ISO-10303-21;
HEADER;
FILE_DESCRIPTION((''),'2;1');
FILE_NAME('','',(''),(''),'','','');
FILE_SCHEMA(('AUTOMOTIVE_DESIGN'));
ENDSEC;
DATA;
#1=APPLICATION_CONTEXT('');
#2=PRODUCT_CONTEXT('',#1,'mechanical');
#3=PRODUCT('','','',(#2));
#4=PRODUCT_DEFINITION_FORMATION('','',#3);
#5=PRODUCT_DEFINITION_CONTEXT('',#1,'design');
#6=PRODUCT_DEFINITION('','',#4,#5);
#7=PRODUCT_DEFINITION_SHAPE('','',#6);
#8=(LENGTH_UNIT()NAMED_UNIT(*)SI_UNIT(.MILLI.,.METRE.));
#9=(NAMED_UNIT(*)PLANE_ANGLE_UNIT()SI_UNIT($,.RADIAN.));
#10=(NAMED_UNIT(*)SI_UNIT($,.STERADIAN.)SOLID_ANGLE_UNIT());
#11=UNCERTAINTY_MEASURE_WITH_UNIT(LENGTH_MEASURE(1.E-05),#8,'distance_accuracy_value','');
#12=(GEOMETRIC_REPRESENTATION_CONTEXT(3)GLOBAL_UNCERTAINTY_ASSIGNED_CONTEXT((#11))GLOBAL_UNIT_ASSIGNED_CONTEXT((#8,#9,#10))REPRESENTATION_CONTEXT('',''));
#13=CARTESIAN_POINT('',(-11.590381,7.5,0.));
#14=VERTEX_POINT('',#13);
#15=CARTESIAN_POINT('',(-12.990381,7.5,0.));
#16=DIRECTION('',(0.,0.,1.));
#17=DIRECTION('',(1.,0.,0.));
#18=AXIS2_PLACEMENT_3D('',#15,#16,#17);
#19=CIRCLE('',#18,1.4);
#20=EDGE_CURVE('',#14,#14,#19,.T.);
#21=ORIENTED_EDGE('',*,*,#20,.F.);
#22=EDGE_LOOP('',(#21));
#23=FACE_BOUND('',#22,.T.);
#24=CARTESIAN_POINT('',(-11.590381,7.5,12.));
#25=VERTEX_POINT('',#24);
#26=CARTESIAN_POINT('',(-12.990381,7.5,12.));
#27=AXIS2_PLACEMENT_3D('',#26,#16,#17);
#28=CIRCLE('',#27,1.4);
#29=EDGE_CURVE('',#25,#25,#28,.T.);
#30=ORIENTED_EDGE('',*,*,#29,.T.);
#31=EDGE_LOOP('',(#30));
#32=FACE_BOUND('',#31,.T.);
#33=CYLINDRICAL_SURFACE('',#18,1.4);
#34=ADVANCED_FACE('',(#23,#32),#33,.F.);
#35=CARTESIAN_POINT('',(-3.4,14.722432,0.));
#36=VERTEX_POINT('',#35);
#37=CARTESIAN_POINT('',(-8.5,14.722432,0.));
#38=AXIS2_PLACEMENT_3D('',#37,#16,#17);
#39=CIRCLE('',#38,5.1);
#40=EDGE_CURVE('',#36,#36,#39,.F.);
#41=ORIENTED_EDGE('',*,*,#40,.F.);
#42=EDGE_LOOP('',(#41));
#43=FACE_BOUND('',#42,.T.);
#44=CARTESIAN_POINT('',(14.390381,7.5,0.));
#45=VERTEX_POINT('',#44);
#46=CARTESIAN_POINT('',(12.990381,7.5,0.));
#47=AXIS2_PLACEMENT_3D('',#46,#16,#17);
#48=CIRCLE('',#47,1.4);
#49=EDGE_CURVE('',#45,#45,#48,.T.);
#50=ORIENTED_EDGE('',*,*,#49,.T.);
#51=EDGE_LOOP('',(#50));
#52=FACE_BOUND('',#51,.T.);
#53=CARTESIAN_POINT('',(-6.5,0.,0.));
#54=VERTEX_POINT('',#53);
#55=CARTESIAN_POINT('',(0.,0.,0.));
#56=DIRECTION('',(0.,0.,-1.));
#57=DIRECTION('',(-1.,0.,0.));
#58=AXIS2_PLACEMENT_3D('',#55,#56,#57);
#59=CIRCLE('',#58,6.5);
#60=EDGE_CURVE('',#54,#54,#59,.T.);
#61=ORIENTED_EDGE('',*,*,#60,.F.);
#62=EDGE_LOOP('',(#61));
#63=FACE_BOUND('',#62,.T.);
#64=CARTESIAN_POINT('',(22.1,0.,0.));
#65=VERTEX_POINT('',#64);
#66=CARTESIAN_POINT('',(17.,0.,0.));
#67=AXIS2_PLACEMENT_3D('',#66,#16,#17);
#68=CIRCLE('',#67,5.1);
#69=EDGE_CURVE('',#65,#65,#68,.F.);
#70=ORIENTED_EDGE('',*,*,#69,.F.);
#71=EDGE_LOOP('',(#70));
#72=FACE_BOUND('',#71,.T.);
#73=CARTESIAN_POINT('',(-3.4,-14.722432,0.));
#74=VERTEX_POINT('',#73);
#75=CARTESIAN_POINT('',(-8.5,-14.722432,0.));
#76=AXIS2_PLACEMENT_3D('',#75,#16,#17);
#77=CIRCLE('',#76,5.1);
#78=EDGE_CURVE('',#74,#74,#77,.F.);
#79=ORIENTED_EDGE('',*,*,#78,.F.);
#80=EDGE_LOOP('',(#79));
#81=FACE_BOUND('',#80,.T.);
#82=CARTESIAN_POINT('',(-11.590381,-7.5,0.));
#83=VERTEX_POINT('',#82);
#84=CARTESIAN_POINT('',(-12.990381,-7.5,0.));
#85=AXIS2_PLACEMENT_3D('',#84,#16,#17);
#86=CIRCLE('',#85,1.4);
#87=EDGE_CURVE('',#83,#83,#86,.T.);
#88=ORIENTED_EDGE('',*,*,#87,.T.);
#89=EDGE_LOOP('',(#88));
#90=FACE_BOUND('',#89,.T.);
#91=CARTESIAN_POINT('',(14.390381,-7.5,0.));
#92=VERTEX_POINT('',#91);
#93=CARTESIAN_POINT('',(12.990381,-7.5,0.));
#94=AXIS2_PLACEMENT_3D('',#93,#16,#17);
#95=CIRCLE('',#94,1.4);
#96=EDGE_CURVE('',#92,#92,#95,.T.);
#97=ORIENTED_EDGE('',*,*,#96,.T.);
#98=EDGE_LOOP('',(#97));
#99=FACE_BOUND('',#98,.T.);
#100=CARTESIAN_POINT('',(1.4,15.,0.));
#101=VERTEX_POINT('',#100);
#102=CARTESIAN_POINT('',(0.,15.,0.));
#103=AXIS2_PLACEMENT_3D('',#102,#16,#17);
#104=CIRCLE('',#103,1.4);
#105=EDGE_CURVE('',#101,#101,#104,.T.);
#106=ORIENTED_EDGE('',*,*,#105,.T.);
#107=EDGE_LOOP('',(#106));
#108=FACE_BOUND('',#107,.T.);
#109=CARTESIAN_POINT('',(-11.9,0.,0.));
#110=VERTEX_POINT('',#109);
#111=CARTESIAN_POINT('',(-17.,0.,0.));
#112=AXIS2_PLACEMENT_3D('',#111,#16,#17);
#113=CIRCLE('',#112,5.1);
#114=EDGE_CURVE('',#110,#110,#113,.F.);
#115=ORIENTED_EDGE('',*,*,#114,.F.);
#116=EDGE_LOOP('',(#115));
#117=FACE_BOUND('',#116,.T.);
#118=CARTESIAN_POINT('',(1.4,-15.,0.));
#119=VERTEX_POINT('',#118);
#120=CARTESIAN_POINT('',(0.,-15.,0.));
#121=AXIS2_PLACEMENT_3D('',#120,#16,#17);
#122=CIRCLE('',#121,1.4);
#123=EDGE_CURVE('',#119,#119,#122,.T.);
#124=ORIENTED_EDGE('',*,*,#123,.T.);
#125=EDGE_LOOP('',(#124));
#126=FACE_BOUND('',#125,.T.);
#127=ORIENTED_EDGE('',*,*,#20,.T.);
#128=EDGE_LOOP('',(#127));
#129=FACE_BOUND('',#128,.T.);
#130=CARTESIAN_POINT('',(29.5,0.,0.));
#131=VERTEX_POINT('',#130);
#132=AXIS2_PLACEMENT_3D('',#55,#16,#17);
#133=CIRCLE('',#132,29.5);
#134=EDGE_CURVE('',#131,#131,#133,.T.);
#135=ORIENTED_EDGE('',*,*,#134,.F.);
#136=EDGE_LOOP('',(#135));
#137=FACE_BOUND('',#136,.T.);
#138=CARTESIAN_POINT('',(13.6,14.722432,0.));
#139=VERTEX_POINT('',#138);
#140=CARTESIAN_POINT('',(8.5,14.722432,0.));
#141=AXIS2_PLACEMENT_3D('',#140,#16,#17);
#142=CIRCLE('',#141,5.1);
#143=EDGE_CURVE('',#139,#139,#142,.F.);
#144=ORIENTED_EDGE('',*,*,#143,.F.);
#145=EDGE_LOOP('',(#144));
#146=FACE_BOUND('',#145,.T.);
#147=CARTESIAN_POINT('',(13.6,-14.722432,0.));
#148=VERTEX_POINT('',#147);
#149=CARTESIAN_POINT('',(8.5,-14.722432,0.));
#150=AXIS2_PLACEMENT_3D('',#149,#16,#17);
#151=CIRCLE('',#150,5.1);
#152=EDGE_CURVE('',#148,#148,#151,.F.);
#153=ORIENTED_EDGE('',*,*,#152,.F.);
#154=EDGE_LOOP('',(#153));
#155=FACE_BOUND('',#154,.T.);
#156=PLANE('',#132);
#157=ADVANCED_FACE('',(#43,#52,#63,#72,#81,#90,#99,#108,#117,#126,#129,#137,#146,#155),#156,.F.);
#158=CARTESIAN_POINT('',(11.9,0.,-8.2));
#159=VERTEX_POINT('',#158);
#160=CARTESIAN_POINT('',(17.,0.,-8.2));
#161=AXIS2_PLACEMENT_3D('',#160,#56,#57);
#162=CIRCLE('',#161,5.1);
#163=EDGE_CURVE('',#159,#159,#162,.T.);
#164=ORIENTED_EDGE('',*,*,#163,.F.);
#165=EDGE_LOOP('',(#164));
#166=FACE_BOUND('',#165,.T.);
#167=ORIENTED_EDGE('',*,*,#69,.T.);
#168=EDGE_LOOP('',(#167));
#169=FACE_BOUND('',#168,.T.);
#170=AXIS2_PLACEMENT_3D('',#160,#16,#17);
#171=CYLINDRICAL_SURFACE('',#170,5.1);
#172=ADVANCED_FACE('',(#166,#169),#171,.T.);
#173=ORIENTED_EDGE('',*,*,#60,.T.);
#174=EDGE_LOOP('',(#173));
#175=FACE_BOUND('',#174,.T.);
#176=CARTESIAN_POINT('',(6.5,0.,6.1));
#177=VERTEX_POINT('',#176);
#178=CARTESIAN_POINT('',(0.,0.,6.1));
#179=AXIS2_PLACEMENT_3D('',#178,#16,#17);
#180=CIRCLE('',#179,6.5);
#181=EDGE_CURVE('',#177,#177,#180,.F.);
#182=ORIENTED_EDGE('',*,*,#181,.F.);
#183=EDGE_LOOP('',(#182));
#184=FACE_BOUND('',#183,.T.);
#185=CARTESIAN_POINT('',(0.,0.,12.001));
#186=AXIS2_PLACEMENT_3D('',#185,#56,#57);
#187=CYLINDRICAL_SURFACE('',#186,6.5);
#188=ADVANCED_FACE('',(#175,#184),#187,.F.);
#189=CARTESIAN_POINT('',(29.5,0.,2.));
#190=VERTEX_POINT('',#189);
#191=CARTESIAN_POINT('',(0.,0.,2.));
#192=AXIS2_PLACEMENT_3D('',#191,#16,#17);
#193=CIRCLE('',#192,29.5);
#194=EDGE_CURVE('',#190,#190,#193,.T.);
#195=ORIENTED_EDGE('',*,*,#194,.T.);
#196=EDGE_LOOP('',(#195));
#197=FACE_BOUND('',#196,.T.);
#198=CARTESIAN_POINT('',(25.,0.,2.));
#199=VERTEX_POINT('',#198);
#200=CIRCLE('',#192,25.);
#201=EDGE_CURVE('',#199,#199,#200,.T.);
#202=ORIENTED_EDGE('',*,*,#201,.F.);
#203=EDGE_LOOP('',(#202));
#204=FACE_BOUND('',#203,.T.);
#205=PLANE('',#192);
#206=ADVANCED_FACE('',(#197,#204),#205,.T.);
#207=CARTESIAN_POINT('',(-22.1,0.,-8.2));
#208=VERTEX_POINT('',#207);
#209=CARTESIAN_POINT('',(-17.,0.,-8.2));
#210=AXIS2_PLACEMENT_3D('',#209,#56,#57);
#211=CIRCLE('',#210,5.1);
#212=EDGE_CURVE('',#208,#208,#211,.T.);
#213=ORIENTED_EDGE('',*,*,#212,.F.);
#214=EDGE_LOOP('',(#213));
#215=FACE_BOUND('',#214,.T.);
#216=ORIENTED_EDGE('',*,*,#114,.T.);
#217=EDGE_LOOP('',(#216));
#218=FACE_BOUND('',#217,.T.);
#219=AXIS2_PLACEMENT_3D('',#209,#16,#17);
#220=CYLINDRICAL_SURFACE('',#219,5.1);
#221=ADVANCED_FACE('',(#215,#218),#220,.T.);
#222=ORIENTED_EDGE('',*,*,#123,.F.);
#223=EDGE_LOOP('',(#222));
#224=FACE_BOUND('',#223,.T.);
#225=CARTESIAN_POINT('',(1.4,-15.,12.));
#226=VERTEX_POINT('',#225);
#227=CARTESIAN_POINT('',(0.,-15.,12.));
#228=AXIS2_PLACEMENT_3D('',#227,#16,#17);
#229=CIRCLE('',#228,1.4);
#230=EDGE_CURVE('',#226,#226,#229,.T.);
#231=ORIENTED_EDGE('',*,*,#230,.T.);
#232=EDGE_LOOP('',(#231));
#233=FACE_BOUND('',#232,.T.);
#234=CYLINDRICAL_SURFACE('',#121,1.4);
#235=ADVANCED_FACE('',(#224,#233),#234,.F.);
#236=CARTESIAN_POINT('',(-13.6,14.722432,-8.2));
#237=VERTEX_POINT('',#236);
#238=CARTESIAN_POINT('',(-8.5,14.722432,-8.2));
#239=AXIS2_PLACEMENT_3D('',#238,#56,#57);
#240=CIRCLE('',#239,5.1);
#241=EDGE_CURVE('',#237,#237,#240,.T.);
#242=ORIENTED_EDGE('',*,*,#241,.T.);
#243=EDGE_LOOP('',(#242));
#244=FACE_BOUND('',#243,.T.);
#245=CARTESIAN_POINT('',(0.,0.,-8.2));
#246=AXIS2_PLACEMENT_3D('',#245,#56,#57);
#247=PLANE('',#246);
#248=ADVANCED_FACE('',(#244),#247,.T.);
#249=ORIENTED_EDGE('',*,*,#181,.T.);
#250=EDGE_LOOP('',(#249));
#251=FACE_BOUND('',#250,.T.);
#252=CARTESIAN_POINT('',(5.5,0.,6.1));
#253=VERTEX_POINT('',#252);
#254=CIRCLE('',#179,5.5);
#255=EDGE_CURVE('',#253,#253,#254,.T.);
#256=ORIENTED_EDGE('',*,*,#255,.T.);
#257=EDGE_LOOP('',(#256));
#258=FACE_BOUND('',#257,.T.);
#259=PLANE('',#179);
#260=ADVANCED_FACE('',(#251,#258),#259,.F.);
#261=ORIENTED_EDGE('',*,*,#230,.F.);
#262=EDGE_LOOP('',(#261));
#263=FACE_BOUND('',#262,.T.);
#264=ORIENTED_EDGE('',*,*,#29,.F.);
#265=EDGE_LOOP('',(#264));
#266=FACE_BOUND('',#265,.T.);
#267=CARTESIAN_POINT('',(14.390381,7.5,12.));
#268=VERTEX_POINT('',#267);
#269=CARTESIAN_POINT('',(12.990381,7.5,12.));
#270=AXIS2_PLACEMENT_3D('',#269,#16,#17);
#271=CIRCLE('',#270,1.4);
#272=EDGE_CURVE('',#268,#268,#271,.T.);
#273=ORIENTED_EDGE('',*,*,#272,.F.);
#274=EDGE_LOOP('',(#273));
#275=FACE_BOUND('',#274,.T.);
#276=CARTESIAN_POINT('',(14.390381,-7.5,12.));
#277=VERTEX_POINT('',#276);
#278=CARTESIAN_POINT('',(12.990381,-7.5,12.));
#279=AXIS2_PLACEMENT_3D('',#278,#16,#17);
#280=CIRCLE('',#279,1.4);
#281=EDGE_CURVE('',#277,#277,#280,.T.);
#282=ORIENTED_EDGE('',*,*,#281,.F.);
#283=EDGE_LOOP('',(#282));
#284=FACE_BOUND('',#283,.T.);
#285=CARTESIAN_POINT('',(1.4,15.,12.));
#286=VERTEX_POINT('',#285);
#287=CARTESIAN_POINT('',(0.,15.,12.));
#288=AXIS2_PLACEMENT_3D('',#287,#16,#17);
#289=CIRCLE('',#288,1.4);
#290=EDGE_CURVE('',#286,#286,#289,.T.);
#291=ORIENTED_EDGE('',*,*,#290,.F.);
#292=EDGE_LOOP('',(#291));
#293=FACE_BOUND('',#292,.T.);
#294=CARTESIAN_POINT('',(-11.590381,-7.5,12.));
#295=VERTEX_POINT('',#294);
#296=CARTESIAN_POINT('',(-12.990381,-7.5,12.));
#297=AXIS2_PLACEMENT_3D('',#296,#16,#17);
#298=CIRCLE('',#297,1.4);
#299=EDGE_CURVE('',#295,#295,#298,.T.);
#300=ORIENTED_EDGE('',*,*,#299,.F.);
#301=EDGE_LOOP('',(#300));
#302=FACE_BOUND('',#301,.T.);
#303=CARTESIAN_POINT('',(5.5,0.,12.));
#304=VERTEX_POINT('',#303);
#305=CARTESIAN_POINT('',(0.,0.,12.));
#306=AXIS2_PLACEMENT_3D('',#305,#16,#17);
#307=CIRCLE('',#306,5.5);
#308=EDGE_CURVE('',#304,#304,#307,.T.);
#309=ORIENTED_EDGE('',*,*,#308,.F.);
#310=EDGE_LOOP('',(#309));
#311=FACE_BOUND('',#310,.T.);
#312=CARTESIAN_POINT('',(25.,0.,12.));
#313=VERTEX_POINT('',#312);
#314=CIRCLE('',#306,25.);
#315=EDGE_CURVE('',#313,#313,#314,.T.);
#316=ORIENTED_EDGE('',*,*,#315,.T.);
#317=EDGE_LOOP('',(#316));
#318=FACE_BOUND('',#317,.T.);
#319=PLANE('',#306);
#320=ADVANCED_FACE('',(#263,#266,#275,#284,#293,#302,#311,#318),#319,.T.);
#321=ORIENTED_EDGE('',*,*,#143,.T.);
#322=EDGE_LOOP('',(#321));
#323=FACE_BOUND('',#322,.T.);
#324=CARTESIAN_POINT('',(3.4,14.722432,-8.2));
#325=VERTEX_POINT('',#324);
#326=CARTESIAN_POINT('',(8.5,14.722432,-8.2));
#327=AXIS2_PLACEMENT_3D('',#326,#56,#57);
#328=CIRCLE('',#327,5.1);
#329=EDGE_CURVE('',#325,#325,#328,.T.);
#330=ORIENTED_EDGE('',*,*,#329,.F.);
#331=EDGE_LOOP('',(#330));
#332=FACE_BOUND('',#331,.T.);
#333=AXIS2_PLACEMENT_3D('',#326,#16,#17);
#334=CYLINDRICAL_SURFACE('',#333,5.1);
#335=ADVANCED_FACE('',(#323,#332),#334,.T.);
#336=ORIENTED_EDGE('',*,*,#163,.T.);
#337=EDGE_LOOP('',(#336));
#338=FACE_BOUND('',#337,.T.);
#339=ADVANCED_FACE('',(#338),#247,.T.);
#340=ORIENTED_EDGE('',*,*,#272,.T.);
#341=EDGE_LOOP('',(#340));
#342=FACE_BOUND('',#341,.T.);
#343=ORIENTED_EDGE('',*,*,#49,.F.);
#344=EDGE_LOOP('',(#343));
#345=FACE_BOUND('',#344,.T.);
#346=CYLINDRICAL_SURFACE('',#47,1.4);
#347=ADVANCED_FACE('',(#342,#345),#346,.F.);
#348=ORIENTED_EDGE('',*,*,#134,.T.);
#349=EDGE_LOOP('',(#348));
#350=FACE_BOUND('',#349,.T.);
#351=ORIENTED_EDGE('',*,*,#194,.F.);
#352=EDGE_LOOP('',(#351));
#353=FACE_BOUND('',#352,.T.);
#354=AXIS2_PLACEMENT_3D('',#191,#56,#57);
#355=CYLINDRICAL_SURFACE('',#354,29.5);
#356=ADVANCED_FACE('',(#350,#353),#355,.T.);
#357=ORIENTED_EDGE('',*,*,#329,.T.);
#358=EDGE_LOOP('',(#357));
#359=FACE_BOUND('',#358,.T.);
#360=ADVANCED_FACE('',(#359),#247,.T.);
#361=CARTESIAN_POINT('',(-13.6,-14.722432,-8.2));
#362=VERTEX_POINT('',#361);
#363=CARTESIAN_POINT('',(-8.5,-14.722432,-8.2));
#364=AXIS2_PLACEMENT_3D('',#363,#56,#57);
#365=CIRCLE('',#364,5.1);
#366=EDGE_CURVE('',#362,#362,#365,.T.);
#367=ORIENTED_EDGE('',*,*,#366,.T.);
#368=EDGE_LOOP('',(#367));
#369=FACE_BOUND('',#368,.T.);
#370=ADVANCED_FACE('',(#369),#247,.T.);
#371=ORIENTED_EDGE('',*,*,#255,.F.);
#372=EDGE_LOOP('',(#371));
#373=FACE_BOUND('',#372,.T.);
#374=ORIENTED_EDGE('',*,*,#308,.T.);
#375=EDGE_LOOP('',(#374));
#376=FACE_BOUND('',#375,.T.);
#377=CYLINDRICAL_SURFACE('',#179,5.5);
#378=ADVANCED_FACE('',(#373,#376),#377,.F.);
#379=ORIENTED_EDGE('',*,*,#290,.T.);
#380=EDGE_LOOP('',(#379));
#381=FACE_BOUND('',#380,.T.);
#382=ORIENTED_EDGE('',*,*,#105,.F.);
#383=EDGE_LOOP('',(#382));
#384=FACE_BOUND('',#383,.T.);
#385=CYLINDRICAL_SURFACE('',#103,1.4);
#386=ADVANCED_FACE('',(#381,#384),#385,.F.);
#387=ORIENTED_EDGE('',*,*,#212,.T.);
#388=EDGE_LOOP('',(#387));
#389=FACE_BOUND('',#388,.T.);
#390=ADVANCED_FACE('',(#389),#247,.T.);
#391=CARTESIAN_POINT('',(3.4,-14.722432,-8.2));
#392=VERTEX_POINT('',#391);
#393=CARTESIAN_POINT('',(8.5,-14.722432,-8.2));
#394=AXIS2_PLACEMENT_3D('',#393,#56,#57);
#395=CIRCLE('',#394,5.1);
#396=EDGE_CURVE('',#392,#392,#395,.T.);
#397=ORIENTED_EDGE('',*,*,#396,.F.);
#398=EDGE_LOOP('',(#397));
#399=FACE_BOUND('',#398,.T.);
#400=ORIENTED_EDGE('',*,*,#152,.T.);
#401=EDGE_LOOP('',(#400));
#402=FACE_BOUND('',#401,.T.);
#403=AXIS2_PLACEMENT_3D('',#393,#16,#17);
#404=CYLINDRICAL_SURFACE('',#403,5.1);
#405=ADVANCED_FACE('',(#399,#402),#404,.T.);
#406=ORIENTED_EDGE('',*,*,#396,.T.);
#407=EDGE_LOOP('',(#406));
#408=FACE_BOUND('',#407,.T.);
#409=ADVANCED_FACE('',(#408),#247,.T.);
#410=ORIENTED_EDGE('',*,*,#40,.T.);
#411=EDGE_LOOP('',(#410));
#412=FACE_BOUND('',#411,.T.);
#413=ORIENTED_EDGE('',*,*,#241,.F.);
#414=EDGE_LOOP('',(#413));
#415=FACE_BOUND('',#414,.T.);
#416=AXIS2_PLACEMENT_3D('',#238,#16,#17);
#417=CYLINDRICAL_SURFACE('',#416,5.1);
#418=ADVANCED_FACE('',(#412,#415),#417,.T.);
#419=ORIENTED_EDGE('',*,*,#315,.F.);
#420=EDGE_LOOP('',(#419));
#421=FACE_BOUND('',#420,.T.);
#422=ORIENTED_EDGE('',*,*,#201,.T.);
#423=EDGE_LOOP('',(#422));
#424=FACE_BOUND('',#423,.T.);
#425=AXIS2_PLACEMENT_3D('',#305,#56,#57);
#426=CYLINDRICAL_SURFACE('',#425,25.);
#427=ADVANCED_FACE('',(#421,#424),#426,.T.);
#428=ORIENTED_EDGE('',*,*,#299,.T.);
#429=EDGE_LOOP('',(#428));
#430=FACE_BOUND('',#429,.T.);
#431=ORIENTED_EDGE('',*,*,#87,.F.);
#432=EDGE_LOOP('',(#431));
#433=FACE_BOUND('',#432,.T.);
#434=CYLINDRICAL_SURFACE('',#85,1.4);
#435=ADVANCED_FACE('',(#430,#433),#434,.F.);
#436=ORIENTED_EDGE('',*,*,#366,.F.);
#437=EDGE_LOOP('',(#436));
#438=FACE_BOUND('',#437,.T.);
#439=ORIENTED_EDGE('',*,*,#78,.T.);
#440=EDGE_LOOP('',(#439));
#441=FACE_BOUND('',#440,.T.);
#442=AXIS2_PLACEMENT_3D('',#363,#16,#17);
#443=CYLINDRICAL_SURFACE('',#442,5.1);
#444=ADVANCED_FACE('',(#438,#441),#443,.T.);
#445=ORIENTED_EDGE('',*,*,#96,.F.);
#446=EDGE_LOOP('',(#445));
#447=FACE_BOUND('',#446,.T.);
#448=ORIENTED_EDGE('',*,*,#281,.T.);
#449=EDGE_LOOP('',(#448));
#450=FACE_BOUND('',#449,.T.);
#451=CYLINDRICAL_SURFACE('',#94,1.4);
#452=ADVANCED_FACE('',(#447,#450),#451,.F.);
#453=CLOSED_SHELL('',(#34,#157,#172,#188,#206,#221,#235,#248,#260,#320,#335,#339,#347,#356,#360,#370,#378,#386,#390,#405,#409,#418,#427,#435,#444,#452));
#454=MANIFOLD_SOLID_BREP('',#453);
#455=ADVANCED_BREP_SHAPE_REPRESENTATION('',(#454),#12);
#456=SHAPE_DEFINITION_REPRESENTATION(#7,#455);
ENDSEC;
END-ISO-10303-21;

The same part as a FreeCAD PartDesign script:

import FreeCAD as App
import Part
import Sketcher

V = App.Vector
Q = App.Units.Quantity

doc = App.newDocument("Part")
body = doc.addObject("PartDesign::Body", "Body")

# Sketch on XY plane
sketch1 = body.newObject("Sketcher::SketchObject", "Sketch")
sketch1.AttachmentSupport = (doc.getObject("XY_Plane"), [""])
sketch1.MapMode = "FlatFace"
sketch1.addGeometry(Part.Circle(V(0, 0, 0), V(0, 0, 1), 30), False)
sketch1.addConstraint([
    Sketcher.Constraint("Coincident", 0, 3, -1, 1),
    Sketcher.Constraint("Diameter", 0, Q("59 mm")),
])
pad1 = body.newObject("PartDesign::Pad", "Pad")
pad1.Profile = sketch1
pad1.Length = 2

# Sketch on XY plane
sketch2 = body.newObject("Sketcher::SketchObject", "Sketch001")
sketch2.AttachmentSupport = (doc.getObject("XY_Plane"), [""])
sketch2.MapMode = "FlatFace"
sketch2.AttachmentOffset = App.Placement(V(0, 0, 2), App.Rotation())
sketch2.addGeometry(Part.Circle(V(0, 0, 0), V(0, 0, 1), 25), False)
sketch2.addConstraint([
    Sketcher.Constraint("Coincident", 0, 3, -1, 1),
    Sketcher.Constraint("Diameter", 0, Q("50 mm")),
])
pad2 = body.newObject("PartDesign::Pad", "Pad001")
pad2.Profile = sketch2
pad2.Length = 10

# Sketch on XY plane
sketch3 = body.newObject("Sketcher::SketchObject", "Sketch002")
sketch3.AttachmentSupport = (doc.getObject("XY_Plane"), [""])
sketch3.MapMode = "FlatFace"
sketch3.addGeometry([
    Part.Circle(V(-17, 0, 0), V(0, 0, 1), 5),  # 0
    Part.Circle(V(-8, -15, 0), V(0, 0, 1), 5),  # 1
    Part.Circle(V(8, -15, 0), V(0, 0, 1), 5),  # 2
    Part.Circle(V(17, 0, 0), V(0, 0, 1), 5),  # 3
    Part.Circle(V(8, 15, 0), V(0, 0, 1), 5),  # 4
    Part.Circle(V(-8, 15, 0), V(0, 0, 1), 5),  # 5
], False)
sketch3.addConstraint([
    Sketcher.Constraint("Equal", 0, 1),
    Sketcher.Constraint("Equal", 1, 2),
    Sketcher.Constraint("Equal", 2, 3),
    Sketcher.Constraint("Equal", 3, 4),
    Sketcher.Constraint("Equal", 4, 5),
    Sketcher.Constraint("Symmetric", 0, 3, 3, 3, -1, 1),
    Sketcher.Constraint("Symmetric", 1, 3, 4, 3, -1, 1),
    Sketcher.Constraint("Symmetric", 2, 3, 5, 3, -1, 1),
    Sketcher.Constraint("Symmetric", 1, 3, 2, 3, -2),
    Sketcher.Constraint("PointOnObject", 0, 3, -1),
    Sketcher.Constraint("Diameter", 0, Q("10.2 mm")),
    Sketcher.Constraint("DistanceX", 0, 3, -1, 1, Q("17 mm")),
    Sketcher.Constraint("DistanceX", 1, 3, 2, 3, Q("17 mm")),
    Sketcher.Constraint("DistanceY", 1, 3, -1, 1, Q("14.722432 mm")),
])
pad3 = body.newObject("PartDesign::Pad", "Pad002")
pad3.Profile = sketch3
pad3.Length = 8.2
pad3.Reversed = True

# Sketch on XY plane
sketch4 = body.newObject("Sketcher::SketchObject", "Sketch003")
sketch4.AttachmentSupport = (doc.getObject("XY_Plane"), [""])
sketch4.MapMode = "FlatFace"
sketch4.AttachmentOffset = App.Placement(V(0, 0, 12), App.Rotation())
sketch4.addGeometry([
    Part.Circle(V(13, 7.5, 0), V(0, 0, 1), 1.4),  # 0
    Part.Circle(V(13, -7.5, 0), V(0, 0, 1), 1.4),  # 1
    Part.Circle(V(0, -15, 0), V(0, 0, 1), 1.4),  # 2
    Part.Circle(V(-13, -7.5, 0), V(0, 0, 1), 1.4),  # 3
    Part.Circle(V(-13, 7.5, 0), V(0, 0, 1), 1.4),  # 4
    Part.Circle(V(0, 15, 0), V(0, 0, 1), 1.4),  # 5
], False)
sketch4.addConstraint([
    Sketcher.Constraint("Equal", 0, 1),
    Sketcher.Constraint("Equal", 1, 2),
    Sketcher.Constraint("Equal", 2, 3),
    Sketcher.Constraint("Equal", 3, 4),
    Sketcher.Constraint("Equal", 4, 5),
    Sketcher.Constraint("Symmetric", 0, 3, 3, 3, -1, 1),
    Sketcher.Constraint("Symmetric", 1, 3, 4, 3, -1, 1),
    Sketcher.Constraint("Symmetric", 2, 3, 5, 3, -1, 1),
    Sketcher.Constraint("Symmetric", 1, 3, 3, 3, -2),
    Sketcher.Constraint("PointOnObject", 2, 3, -2),
    Sketcher.Constraint("Diameter", 0, Q("2.8 mm")),
    Sketcher.Constraint("DistanceY", 2, 3, -1, 1, Q("15 mm")),
    Sketcher.Constraint("DistanceY", 1, 3, 0, 3, Q("15 mm")),
    Sketcher.Constraint("DistanceX", -1, 1, 0, 3, Q("12.990381 mm")),
])
pocket1 = body.newObject("PartDesign::Pocket", "Pocket")
pocket1.Profile = sketch4
pocket1.Length = 12

# Sketch on XY plane
sketch5 = body.newObject("Sketcher::SketchObject", "Sketch004")
sketch5.AttachmentSupport = (doc.getObject("XY_Plane"), [""])
sketch5.MapMode = "FlatFace"
sketch5.addGeometry(Part.Circle(V(0, 0, 0), V(0, 0, 1), 6), False)
sketch5.addConstraint([
    Sketcher.Constraint("Coincident", 0, 3, -1, 1),
    Sketcher.Constraint("Diameter", 0, Q("13 mm")),
])
pocket2 = body.newObject("PartDesign::Pocket", "Pocket001")
pocket2.Profile = sketch5
pocket2.Type = "UpToFirst"
pocket2.Reversed = True

# Sketch on XY plane
sketch6 = body.newObject("Sketcher::SketchObject", "Sketch005")
sketch6.AttachmentSupport = (doc.getObject("XY_Plane"), [""])
sketch6.MapMode = "FlatFace"
sketch6.AttachmentOffset = App.Placement(V(0, 0, 6.1), App.Rotation())
sketch6.addGeometry([
    Part.Circle(V(0, 0, 0), V(0, 0, 1), 6),
    Part.Circle(V(0, 0, 0), V(0, 0, 1), 6),
], False)
sketch6.addConstraint([
    Sketcher.Constraint("Coincident", 0, 3, -1, 1),
    Sketcher.Constraint("Coincident", 1, 3, -1, 1),
    Sketcher.Constraint("Diameter", 0, Q("13 mm")),
    Sketcher.Constraint("Diameter", 1, Q("11 mm")),
])
pad4 = body.newObject("PartDesign::Pad", "Pad003")
pad4.Profile = sketch6
pad4.Length = 5.9

doc.recompute()
